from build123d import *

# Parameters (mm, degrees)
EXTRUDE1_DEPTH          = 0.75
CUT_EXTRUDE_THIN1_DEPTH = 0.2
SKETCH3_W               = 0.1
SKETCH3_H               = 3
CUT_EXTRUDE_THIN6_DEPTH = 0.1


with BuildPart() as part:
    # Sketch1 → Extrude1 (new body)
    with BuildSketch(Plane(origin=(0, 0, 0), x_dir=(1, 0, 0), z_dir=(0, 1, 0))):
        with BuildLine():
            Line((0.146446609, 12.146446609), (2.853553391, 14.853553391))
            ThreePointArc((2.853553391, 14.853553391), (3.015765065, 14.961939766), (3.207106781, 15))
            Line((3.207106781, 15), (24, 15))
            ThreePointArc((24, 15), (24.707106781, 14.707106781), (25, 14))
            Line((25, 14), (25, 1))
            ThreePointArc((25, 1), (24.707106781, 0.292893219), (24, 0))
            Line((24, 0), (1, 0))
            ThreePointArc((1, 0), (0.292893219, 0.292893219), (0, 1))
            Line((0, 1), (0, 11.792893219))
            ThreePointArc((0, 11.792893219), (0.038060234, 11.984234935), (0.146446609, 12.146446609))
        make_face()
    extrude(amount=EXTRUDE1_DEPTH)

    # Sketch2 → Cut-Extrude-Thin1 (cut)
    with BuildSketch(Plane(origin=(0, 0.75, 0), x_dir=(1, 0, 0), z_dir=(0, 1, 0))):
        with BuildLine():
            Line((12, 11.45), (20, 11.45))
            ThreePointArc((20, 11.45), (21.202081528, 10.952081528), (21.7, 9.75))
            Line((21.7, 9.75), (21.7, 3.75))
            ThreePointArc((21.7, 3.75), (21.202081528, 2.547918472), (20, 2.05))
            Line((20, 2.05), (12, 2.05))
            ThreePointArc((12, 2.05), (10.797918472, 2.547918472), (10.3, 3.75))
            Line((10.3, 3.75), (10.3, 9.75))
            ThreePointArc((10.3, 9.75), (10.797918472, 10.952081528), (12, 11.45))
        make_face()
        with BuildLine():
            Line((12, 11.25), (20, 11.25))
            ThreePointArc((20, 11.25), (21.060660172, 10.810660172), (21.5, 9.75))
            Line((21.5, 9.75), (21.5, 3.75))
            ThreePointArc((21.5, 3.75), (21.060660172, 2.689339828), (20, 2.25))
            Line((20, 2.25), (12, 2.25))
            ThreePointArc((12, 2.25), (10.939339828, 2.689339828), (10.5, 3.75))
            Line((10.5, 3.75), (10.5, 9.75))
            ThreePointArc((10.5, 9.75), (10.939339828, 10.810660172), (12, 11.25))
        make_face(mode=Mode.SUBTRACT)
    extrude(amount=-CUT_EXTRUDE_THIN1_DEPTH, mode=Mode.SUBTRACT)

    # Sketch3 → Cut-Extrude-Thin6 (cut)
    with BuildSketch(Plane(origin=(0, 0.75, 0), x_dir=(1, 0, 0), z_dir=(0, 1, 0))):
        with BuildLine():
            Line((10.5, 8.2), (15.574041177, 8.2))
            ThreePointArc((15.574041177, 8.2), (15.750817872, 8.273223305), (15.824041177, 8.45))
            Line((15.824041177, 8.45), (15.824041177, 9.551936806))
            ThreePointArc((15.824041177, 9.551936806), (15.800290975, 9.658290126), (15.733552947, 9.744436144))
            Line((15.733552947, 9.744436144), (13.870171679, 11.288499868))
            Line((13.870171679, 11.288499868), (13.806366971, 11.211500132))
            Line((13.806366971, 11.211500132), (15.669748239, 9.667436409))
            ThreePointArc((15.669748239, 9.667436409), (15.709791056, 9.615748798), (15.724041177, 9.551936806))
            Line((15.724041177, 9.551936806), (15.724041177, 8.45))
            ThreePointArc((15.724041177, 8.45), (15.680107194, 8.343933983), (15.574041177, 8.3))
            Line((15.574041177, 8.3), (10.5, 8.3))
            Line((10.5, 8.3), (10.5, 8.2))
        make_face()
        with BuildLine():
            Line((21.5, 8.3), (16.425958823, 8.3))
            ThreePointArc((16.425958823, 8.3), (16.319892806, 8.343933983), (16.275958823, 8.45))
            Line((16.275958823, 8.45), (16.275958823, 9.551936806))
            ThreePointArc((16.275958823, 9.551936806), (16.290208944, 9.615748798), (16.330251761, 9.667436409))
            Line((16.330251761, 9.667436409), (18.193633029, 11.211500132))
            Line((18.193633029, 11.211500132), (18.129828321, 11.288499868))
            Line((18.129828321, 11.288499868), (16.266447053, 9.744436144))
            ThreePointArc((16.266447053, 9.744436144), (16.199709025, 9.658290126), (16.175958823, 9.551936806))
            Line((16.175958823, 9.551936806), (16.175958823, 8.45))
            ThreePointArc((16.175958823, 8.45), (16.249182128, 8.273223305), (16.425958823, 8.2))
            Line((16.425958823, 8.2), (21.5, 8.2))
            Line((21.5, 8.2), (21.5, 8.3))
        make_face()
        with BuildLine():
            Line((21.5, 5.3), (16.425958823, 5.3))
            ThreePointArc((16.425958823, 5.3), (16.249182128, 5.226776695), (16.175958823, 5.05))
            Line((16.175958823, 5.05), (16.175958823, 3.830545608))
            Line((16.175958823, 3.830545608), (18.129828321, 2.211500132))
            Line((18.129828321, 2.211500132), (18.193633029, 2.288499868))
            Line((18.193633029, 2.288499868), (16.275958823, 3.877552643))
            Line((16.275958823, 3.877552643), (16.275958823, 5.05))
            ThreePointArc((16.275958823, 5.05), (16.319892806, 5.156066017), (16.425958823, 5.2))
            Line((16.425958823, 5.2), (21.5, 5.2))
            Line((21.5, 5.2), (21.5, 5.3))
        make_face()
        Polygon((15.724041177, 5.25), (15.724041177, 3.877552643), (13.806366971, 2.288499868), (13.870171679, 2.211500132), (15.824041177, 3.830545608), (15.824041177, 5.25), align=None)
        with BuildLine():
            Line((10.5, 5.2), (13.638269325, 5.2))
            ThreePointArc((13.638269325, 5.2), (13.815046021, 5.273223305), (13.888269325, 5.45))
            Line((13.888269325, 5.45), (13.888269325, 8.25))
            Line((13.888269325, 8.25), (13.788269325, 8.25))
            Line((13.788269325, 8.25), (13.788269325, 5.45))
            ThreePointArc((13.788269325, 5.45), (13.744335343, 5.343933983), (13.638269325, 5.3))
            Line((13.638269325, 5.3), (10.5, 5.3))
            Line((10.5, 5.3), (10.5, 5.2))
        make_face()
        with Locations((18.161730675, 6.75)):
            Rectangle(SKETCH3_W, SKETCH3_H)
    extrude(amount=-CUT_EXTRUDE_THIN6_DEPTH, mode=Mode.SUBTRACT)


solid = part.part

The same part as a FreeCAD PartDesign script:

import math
import FreeCAD as App
import Part
import Sketcher

V = App.Vector
Q = App.Units.Quantity

doc = App.newDocument("Part")
body = doc.addObject("PartDesign::Body", "Body")

# Sketch on XZ plane
sketch1 = doc.addObject("Sketcher::SketchObject", "Sketch")
body.addObject(sketch1)
sketch1.AttachmentSupport = (doc.XZ_Plane, [""])
sketch1.MapMode = "FlatFace"
sketch1.addGeometry(Part.LineSegment(V(2.853553, -14.853553, 0), V(0.146447, -12.146447, 0)), False)
sketch1.addGeometry(Part.ArcOfCircle(Part.Circle(V(0.5, -11.792893, 0), V(0, 0, 1), 0.5), math.radians(-180), math.radians(-135)), False)
sketch1.addGeometry(Part.LineSegment(V(0, -11.792893, 0), V(0, -1, 0)), False)
sketch1.addGeometry(Part.ArcOfCircle(Part.Circle(V(1, -1, 0), V(0, 0, 1), 1), math.radians(90), math.radians(180)), False)
sketch1.addGeometry(Part.LineSegment(V(1, 0, 0), V(24, 0, 0)), False)
sketch1.addGeometry(Part.ArcOfCircle(Part.Circle(V(24, -1, 0), V(0, 0, 1), 1), math.radians(0), math.radians(90)), False)
sketch1.addGeometry(Part.LineSegment(V(25, -1, 0), V(25, -14, 0)), False)
sketch1.addGeometry(Part.ArcOfCircle(Part.Circle(V(24, -14, 0), V(0, 0, 1), 1), math.radians(-90), math.radians(0)), False)
sketch1.addGeometry(Part.LineSegment(V(24, -15, 0), V(3.207107, -15, 0)), False)
sketch1.addGeometry(Part.ArcOfCircle(Part.Circle(V(3.207107, -14.5, 0), V(0, 0, 1), 0.5), math.radians(-135), math.radians(-90)), False)
sketch1.addConstraint(Sketcher.Constraint("Tangent", 0, 2, 1, 2))
sketch1.addConstraint(Sketcher.Constraint("Tangent", 1, 1, 2, 1))
sketch1.addConstraint(Sketcher.Constraint("Tangent", 2, 2, 3, 2))
sketch1.addConstraint(Sketcher.Constraint("Tangent", 3, 1, 4, 1))
sketch1.addConstraint(Sketcher.Constraint("Tangent", 4, 2, 5, 2))
sketch1.addConstraint(Sketcher.Constraint("Tangent", 5, 1, 6, 1))
sketch1.addConstraint(Sketcher.Constraint("Tangent", 6, 2, 7, 2))
sketch1.addConstraint(Sketcher.Constraint("Tangent", 7, 1, 8, 1))
sketch1.addConstraint(Sketcher.Constraint("Tangent", 8, 2, 9, 2))
sketch1.addConstraint(Sketcher.Constraint("Tangent", 9, 1, 0, 1))
sketch1.addConstraint(Sketcher.Constraint("Vertical", 2))
sketch1.addConstraint(Sketcher.Constraint("Horizontal", 4))
sketch1.addConstraint(Sketcher.Constraint("Vertical", 6))
sketch1.addConstraint(Sketcher.Constraint("Horizontal", 8))
sketch1.addConstraint(Sketcher.Constraint("Equal", 3, 5))
sketch1.addConstraint(Sketcher.Constraint("Equal", 5, 7))
sketch1.addConstraint(Sketcher.Constraint("Equal", 1, 9))
sketch1.addConstraint(Sketcher.Constraint("PointOnObject", 1, 1, -2))
sketch1.addConstraint(Sketcher.Constraint("PointOnObject", 3, 1, -1))
sketch1.addConstraint(Sketcher.Constraint("Radius", 3, 1.0))
sketch1.addConstraint(Sketcher.Constraint("Radius", 1, 0.5))
sketch1.addConstraint(Sketcher.Constraint("DistanceX", 4, 1, 4, 2, 23.0))
sketch1.addConstraint(Sketcher.Constraint("DistanceY", 6, 2, 6, 1, 13.0))
sketch1.addConstraint(Sketcher.Constraint("Angle", 0, Q("135 deg")))
sketch1.addConstraint(Sketcher.Constraint("DistanceX", 8, 2, 8, 1, 20.792893))
pad1 = doc.addObject("PartDesign::Pad", "Pad")
body.addObject(pad1)
pad1.Profile = sketch1
pad1.Length = 0.75
pad1.Reversed = True

# Sketch on XZ plane
sketch2 = doc.addObject("Sketcher::SketchObject", "Sketch001")
body.addObject(sketch2)
sketch2.AttachmentSupport = (doc.XZ_Plane, [""])
sketch2.MapMode = "FlatFace"
sketch2.AttachmentOffset = App.Placement(V(0, 0, -0.75), App.Rotation())
sketch2.addGeometry(Part.LineSegment(V(20, -11.45, 0), V(12, -11.45, 0)), False)
sketch2.addGeometry(Part.ArcOfCircle(Part.Circle(V(12, -9.75, 0), V(0, 0, 1), 1.7), math.radians(180), math.radians(270)), False)
sketch2.addGeometry(Part.LineSegment(V(10.3, -9.75, 0), V(10.3, -3.75, 0)), False)
sketch2.addGeometry(Part.ArcOfCircle(Part.Circle(V(12, -3.75, 0), V(0, 0, 1), 1.7), math.radians(90), math.radians(180)), False)
sketch2.addGeometry(Part.LineSegment(V(12, -2.05, 0), V(20, -2.05, 0)), False)
sketch2.addGeometry(Part.ArcOfCircle(Part.Circle(V(20, -3.75, 0), V(0, 0, 1), 1.7), math.radians(0), math.radians(90)), False)
sketch2.addGeometry(Part.LineSegment(V(21.7, -3.75, 0), V(21.7, -9.75, 0)), False)
sketch2.addGeometry(Part.ArcOfCircle(Part.Circle(V(20, -9.75, 0), V(0, 0, 1), 1.7), math.radians(-90), math.radians(0)), False)
sketch2.addGeometry(Part.LineSegment(V(12, -11.25, 0), V(20, -11.25, 0)), False)
sketch2.addGeometry(Part.ArcOfCircle(Part.Circle(V(20, -9.75, 0), V(0, 0, 1), 1.5), math.radians(-90), math.radians(0)), False)
sketch2.addGeometry(Part.LineSegment(V(21.5, -9.75, 0), V(21.5, -3.75, 0)), False)
sketch2.addGeometry(Part.ArcOfCircle(Part.Circle(V(20, -3.75, 0), V(0, 0, 1), 1.5), math.radians(0), math.radians(90)), False)
sketch2.addGeometry(Part.LineSegment(V(20, -2.25, 0), V(12, -2.25, 0)), False)
sketch2.addGeometry(Part.ArcOfCircle(Part.Circle(V(12, -3.75, 0), V(0, 0, 1), 1.5), math.radians(90), math.radians(180)), False)
sketch2.addGeometry(Part.LineSegment(V(10.5, -3.75, 0), V(10.5, -9.75, 0)), False)
sketch2.addGeometry(Part.ArcOfCircle(Part.Circle(V(12, -9.75, 0), V(0, 0, 1), 1.5), math.radians(180), math.radians(270)), False)
sketch2.addConstraint(Sketcher.Constraint("Tangent", 0, 2, 1, 2))
sketch2.addConstraint(Sketcher.Constraint("Tangent", 1, 1, 2, 1))
sketch2.addConstraint(Sketcher.Constraint("Tangent", 2, 2, 3, 2))
sketch2.addConstraint(Sketcher.Constraint("Tangent", 3, 1, 4, 1))
sketch2.addConstraint(Sketcher.Constraint("Tangent", 4, 2, 5, 2))
sketch2.addConstraint(Sketcher.Constraint("Tangent", 5, 1, 6, 1))
sketch2.addConstraint(Sketcher.Constraint("Tangent", 6, 2, 7, 2))
sketch2.addConstraint(Sketcher.Constraint("Tangent", 7, 1, 0, 1))
sketch2.addConstraint(Sketcher.Constraint("Tangent", 8, 2, 9, 1))
sketch2.addConstraint(Sketcher.Constraint("Tangent", 9, 2, 10, 1))
sketch2.addConstraint(Sketcher.Constraint("Tangent", 10, 2, 11, 1))
sketch2.addConstraint(Sketcher.Constraint("Tangent", 11, 2, 12, 1))
sketch2.addConstraint(Sketcher.Constraint("Tangent", 12, 2, 13, 1))
sketch2.addConstraint(Sketcher.Constraint("Tangent", 13, 2, 14, 1))
sketch2.addConstraint(Sketcher.Constraint("Tangent", 14, 2, 15, 1))
sketch2.addConstraint(Sketcher.Constraint("Tangent", 15, 2, 8, 1))
sketch2.addConstraint(Sketcher.Constraint("Horizontal", 0))
sketch2.addConstraint(Sketcher.Constraint("Vertical", 2))
sketch2.addConstraint(Sketcher.Constraint("Horizontal", 4))
sketch2.addConstraint(Sketcher.Constraint("Vertical", 6))
sketch2.addConstraint(Sketcher.Constraint("Horizontal", 8))
sketch2.addConstraint(Sketcher.Constraint("Vertical", 10))
sketch2.addConstraint(Sketcher.Constraint("Horizontal", 12))
sketch2.addConstraint(Sketcher.Constraint("Vertical", 14))
sketch2.addConstraint(Sketcher.Constraint("Coincident", 9, 3, 7, 3))
sketch2.addConstraint(Sketcher.Constraint("Coincident", 11, 3, 5, 3))
sketch2.addConstraint(Sketcher.Constraint("Coincident", 13, 3, 3, 3))
sketch2.addConstraint(Sketcher.Constraint("Equal", 1, 3))
sketch2.addConstraint(Sketcher.Constraint("Equal", 3, 5))
sketch2.addConstraint(Sketcher.Constraint("Equal", 5, 7))
sketch2.addConstraint(Sketcher.Constraint("Equal", 13, 15))
sketch2.addConstraint(Sketcher.Constraint("Radius", 1, 1.7))
sketch2.addConstraint(Sketcher.Constraint("Radius", 9, 1.5))
sketch2.addConstraint(Sketcher.Constraint("DistanceX", 0, 2, 0, 1, 8.0))
sketch2.addConstraint(Sketcher.Constraint("DistanceY", 2, 1, 2, 2, 6.0))
sketch2.addConstraint(Sketcher.Constraint("DistanceX", -1, 1, 1, 3, 12.0))
sketch2.addConstraint(Sketcher.Constraint("DistanceY", 1, 3, -1, 1, 9.75))
pocket1 = doc.addObject("PartDesign::Pocket", "Pocket")
body.addObject(pocket1)
pocket1.Profile = sketch2
pocket1.Length = 0.2
pocket1.Reversed = True

# Sketch on XZ plane
sketch3 = doc.addObject("Sketcher::SketchObject", "Sketch002")
body.addObject(sketch3)
sketch3.AttachmentSupport = (doc.XZ_Plane, [""])
sketch3.MapMode = "FlatFace"
sketch3.AttachmentOffset = App.Placement(V(0, 0, -0.75), App.Rotation())
sketch3.addGeometry(Part.LineSegment(V(10.5, -8.3, 0), V(10.5, -8.2, 0)), False)
sketch3.addGeometry(Part.LineSegment(V(10.5, -8.2, 0), V(13.788269, -8.2, 0)), False)
sketch3.addGeometry(Part.LineSegment(V(13.788269, -8.2, 0), V(13.788269, -5.45, 0)), False)
sketch3.addGeometry(Part.ArcOfCircle(Part.Circle(V(13.638269, -5.45, 0), V(0, 0, 1), 0.15), math.radians(0), math.radians(90)), False)
sketch3.addGeometry(Part.LineSegment(V(13.638269, -5.3, 0), V(10.5, -5.3, 0)), False)
sketch3.addGeometry(Part.LineSegment(V(10.5, -5.3, 0), V(10.5, -5.2, 0)), False)
sketch3.addGeometry(Part.LineSegment(V(10.5, -5.2, 0), V(13.638269, -5.2, 0)), False)
sketch3.addGeometry(Part.ArcOfCircle(Part.Circle(V(13.638269, -5.45, 0), V(0, 0, 1), 0.25), math.radians(0), math.radians(90)), False)
sketch3.addGeometry(Part.LineSegment(V(13.888269, -5.45, 0), V(13.888269, -8.2, 0)), False)
sketch3.addGeometry(Part.LineSegment(V(13.888269, -8.2, 0), V(15.574041, -8.2, 0)), False)
sketch3.addGeometry(Part.ArcOfCircle(Part.Circle(V(15.574041, -8.45, 0), V(0, 0, 1), 0.25), math.radians(0), math.radians(90)), False)
sketch3.addGeometry(Part.LineSegment(V(15.824041, -8.45, 0), V(15.824041, -9.551937, 0)), False)
sketch3.addGeometry(Part.ArcOfCircle(Part.Circle(V(15.574041, -9.551937, 0), V(0, 0, 1), 0.25), math.radians(-50.353651), math.radians(0)), False)
sketch3.addGeometry(Part.LineSegment(V(15.733553, -9.744436, 0), V(13.870172, -11.2885, 0)), False)
sketch3.addGeometry(Part.LineSegment(V(13.870172, -11.2885, 0), V(13.806367, -11.2115, 0)), False)
sketch3.addGeometry(Part.LineSegment(V(13.806367, -11.2115, 0), V(15.669748, -9.667436, 0)), False)
sketch3.addGeometry(Part.ArcOfCircle(Part.Circle(V(15.574041, -9.551937, 0), V(0, 0, 1), 0.15), math.radians(-50.353651), math.radians(0)), False)
sketch3.addGeometry(Part.LineSegment(V(15.724041, -9.551937, 0), V(15.724041, -8.45, 0)), False)
sketch3.addGeometry(Part.ArcOfCircle(Part.Circle(V(15.574041, -8.45, 0), V(0, 0, 1), 0.15), math.radians(0), math.radians(90)), False)
sketch3.addGeometry(Part.LineSegment(V(15.574041, -8.3, 0), V(10.5, -8.3, 0)), False)
sketch3.addGeometry(Part.LineSegment(V(21.5, -8.2, 0), V(21.5, -8.3, 0)), False)
sketch3.addGeometry(Part.LineSegment(V(21.5, -8.3, 0), V(16.425959, -8.3, 0)), False)
sketch3.addGeometry(Part.ArcOfCircle(Part.Circle(V(16.425959, -8.45, 0), V(0, 0, 1), 0.15), math.radians(90), math.radians(180)), False)
sketch3.addGeometry(Part.LineSegment(V(16.275959, -8.45, 0), V(16.275959, -9.551937, 0)), False)
sketch3.addGeometry(Part.ArcOfCircle(Part.Circle(V(16.425959, -9.551937, 0), V(0, 0, 1), 0.15), math.radians(180), math.radians(230.353651)), False)
sketch3.addGeometry(Part.LineSegment(V(16.330252, -9.667436, 0), V(18.193633, -11.2115, 0)), False)
sketch3.addGeometry(Part.LineSegment(V(18.193633, -11.2115, 0), V(18.129828, -11.2885, 0)), False)
sketch3.addGeometry(Part.LineSegment(V(18.129828, -11.2885, 0), V(16.266447, -9.744436, 0)), False)
sketch3.addGeometry(Part.ArcOfCircle(Part.Circle(V(16.425959, -9.551937, 0), V(0, 0, 1), 0.25), math.radians(-180), math.radians(-129.646349)), False)
sketch3.addGeometry(Part.LineSegment(V(16.175959, -9.551937, 0), V(16.175959, -8.45, 0)), False)
sketch3.addGeometry(Part.ArcOfCircle(Part.Circle(V(16.425959, -8.45, 0), V(0, 0, 1), 0.25), math.radians(90), math.radians(180)), False)
sketch3.addGeometry(Part.LineSegment(V(16.425959, -8.2, 0), V(18.111731, -8.2, 0)), False)
sketch3.addGeometry(Part.LineSegment(V(18.111731, -8.2, 0), V(18.111731, -5.3, 0)), False)
sketch3.addGeometry(Part.LineSegment(V(18.111731, -5.3, 0), V(16.425959, -5.3, 0)), False)
sketch3.addGeometry(Part.ArcOfCircle(Part.Circle(V(16.425959, -5.05, 0), V(0, 0, 1), 0.25), math.radians(-180), math.radians(-90)), False)
sketch3.addGeometry(Part.LineSegment(V(16.175959, -5.05, 0), V(16.175959, -3.830546, 0)), False)
sketch3.addGeometry(Part.LineSegment(V(16.175959, -3.830546, 0), V(18.129828, -2.2115, 0)), False)
sketch3.addGeometry(Part.LineSegment(V(18.129828, -2.2115, 0), V(18.193633, -2.2885, 0)), False)
sketch3.addGeometry(Part.LineSegment(V(18.193633, -2.2885, 0), V(16.275959, -3.877553, 0)), False)
sketch3.addGeometry(Part.LineSegment(V(16.275959, -3.877553, 0), V(16.275959, -5.05, 0)), False)
sketch3.addGeometry(Part.ArcOfCircle(Part.Circle(V(16.425959, -5.05, 0), V(0, 0, 1), 0.15), math.radians(-180), math.radians(-90)), False)
sketch3.addGeometry(Part.LineSegment(V(16.425959, -5.2, 0), V(21.5, -5.2, 0)), False)
sketch3.addGeometry(Part.LineSegment(V(21.5, -5.2, 0), V(21.5, -5.3, 0)), False)
sketch3.addGeometry(Part.LineSegment(V(21.5, -5.3, 0), V(18.211731, -5.3, 0)), False)
sketch3.addGeometry(Part.LineSegment(V(18.211731, -5.3, 0), V(18.211731, -8.2, 0)), False)
sketch3.addGeometry(Part.LineSegment(V(18.211731, -8.2, 0), V(21.5, -8.2, 0)), False)
sketch3.addGeometry(Part.LineSegment(V(15.724041, -5.25, 0), V(15.724041, -3.877553, 0)), False)
sketch3.addGeometry(Part.LineSegment(V(15.724041, -3.877553, 0), V(13.806367, -2.2885, 0)), False)
sketch3.addGeometry(Part.LineSegment(V(13.806367, -2.2885, 0), V(13.870172, -2.2115, 0)), False)
sketch3.addGeometry(Part.LineSegment(V(13.870172, -2.2115, 0), V(15.824041, -3.830546, 0)), False)
sketch3.addGeometry(Part.LineSegment(V(15.824041, -3.830546, 0), V(15.824041, -5.25, 0)), False)
sketch3.addGeometry(Part.LineSegment(V(15.824041, -5.25, 0), V(15.724041, -5.25, 0)), False)
sketch3.addConstraint(Sketcher.Constraint("Coincident", 0, 2, 1, 1))
sketch3.addConstraint(Sketcher.Constraint("Coincident", 1, 2, 2, 1))
sketch3.addConstraint(Sketcher.Constraint("Tangent", 2, 2, 3, 1))
sketch3.addConstraint(Sketcher.Constraint("Tangent", 3, 2, 4, 1))
sketch3.addConstraint(Sketcher.Constraint("Coincident", 4, 2, 5, 1))
sketch3.addConstraint(Sketcher.Constraint("Coincident", 5, 2, 6, 1))
sketch3.addConstraint(Sketcher.Constraint("Tangent", 6, 2, 7, 2))
sketch3.addConstraint(Sketcher.Constraint("Tangent", 7, 1, 8, 1))
sketch3.addConstraint(Sketcher.Constraint("Coincident", 8, 2, 9, 1))
sketch3.addConstraint(Sketcher.Constraint("Tangent", 9, 2, 10, 2))
sketch3.addConstraint(Sketcher.Constraint("Tangent", 10, 1, 11, 1))
sketch3.addConstraint(Sketcher.Constraint("Tangent", 11, 2, 12, 2))
sketch3.addConstraint(Sketcher.Constraint("Tangent", 12, 1, 13, 1))
sketch3.addConstraint(Sketcher.Constraint("Coincident", 13, 2, 14, 1))
sketch3.addConstraint(Sketcher.Constraint("Coincident", 14, 2, 15, 1))
sketch3.addConstraint(Sketcher.Constraint("Tangent", 15, 2, 16, 1))
sketch3.addConstraint(Sketcher.Constraint("Tangent", 16, 2, 17, 1))
sketch3.addConstraint(Sketcher.Constraint("Tangent", 17, 2, 18, 1))
sketch3.addConstraint(Sketcher.Constraint("Tangent", 18, 2, 19, 1))
sketch3.addConstraint(Sketcher.Constraint("Coincident", 19, 2, 0, 1))
sketch3.addConstraint(Sketcher.Constraint("Coincident", 20, 2, 21, 1))
sketch3.addConstraint(Sketcher.Constraint("Tangent", 21, 2, 22, 1))
sketch3.addConstraint(Sketcher.Constraint("Tangent", 22, 2, 23, 1))
sketch3.addConstraint(Sketcher.Constraint("Tangent", 23, 2, 24, 1))
sketch3.addConstraint(Sketcher.Constraint("Tangent", 24, 2, 25, 1))
sketch3.addConstraint(Sketcher.Constraint("Coincident", 25, 2, 26, 1))
sketch3.addConstraint(Sketcher.Constraint("Coincident", 26, 2, 27, 1))
sketch3.addConstraint(Sketcher.Constraint("Tangent", 27, 2, 28, 2))
sketch3.addConstraint(Sketcher.Constraint("Tangent", 28, 1, 29, 1))
sketch3.addConstraint(Sketcher.Constraint("Tangent", 29, 2, 30, 2))
sketch3.addConstraint(Sketcher.Constraint("Tangent", 30, 1, 31, 1))
sketch3.addConstraint(Sketcher.Constraint("Coincident", 31, 2, 32, 1))
sketch3.addConstraint(Sketcher.Constraint("Coincident", 32, 2, 33, 1))
sketch3.addConstraint(Sketcher.Constraint("Tangent", 33, 2, 34, 2))
sketch3.addConstraint(Sketcher.Constraint("Tangent", 34, 1, 35, 1))
sketch3.addConstraint(Sketcher.Constraint("Coincident", 35, 2, 36, 1))
sketch3.addConstraint(Sketcher.Constraint("Coincident", 36, 2, 37, 1))
sketch3.addConstraint(Sketcher.Constraint("Coincident", 37, 2, 38, 1))
sketch3.addConstraint(Sketcher.Constraint("Coincident", 38, 2, 39, 1))
sketch3.addConstraint(Sketcher.Constraint("Tangent", 39, 2, 40, 1))
sketch3.addConstraint(Sketcher.Constraint("Tangent", 40, 2, 41, 1))
sketch3.addConstraint(Sketcher.Constraint("Coincident", 41, 2, 42, 1))
sketch3.addConstraint(Sketcher.Constraint("Coincident", 42, 2, 43, 1))
sketch3.addConstraint(Sketcher.Constraint("Coincident", 43, 2, 44, 1))
sketch3.addConstraint(Sketcher.Constraint("Coincident", 44, 2, 45, 1))
sketch3.addConstraint(Sketcher.Constraint("Coincident", 45, 2, 20, 1))
sketch3.addConstraint(Sketcher.Constraint("Coincident", 46, 2, 47, 1))
sketch3.addConstraint(Sketcher.Constraint("Coincident", 47, 2, 48, 1))
sketch3.addConstraint(Sketcher.Constraint("Coincident", 48, 2, 49, 1))
sketch3.addConstraint(Sketcher.Constraint("Coincident", 49, 2, 50, 1))
sketch3.addConstraint(Sketcher.Constraint("Coincident", 50, 2, 51, 1))
sketch3.addConstraint(Sketcher.Constraint("Coincident", 51, 2, 46, 1))
sketch3.addConstraint(Sketcher.Constraint("Vertical", 0))
sketch3.addConstraint(Sketcher.Constraint("Horizontal", 1))
sketch3.addConstraint(Sketcher.Constraint("Vertical", 2))
sketch3.addConstraint(Sketcher.Constraint("Horizontal", 4))
sketch3.addConstraint(Sketcher.Constraint("Vertical", 5))
sketch3.addConstraint(Sketcher.Constraint("Horizontal", 6))
sketch3.addConstraint(Sketcher.Constraint("Vertical", 8))
sketch3.addConstraint(Sketcher.Constraint("Horizontal", 9))
sketch3.addConstraint(Sketcher.Constraint("Vertical", 11))
sketch3.addConstraint(Sketcher.Constraint("Vertical", 17))
sketch3.addConstraint(Sketcher.Constraint("Horizontal", 19))
sketch3.addConstraint(Sketcher.Constraint("Vertical", 20))
sketch3.addConstraint(Sketcher.Constraint("Horizontal", 21))
sketch3.addConstraint(Sketcher.Constraint("Vertical", 23))
sketch3.addConstraint(Sketcher.Constraint("Vertical", 29))
sketch3.addConstraint(Sketcher.Constraint("Horizontal", 31))
sketch3.addConstraint(Sketcher.Constraint("Vertical", 32))
sketch3.addConstraint(Sketcher.Constraint("Horizontal", 33))
sketch3.addConstraint(Sketcher.Constraint("Vertical", 35))
sketch3.addConstraint(Sketcher.Constraint("Vertical", 39))
sketch3.addConstraint(Sketcher.Constraint("Horizontal", 41))
sketch3.addConstraint(Sketcher.Constraint("Vertical", 42))
sketch3.addConstraint(Sketcher.Constraint("Horizontal", 43))
sketch3.addConstraint(Sketcher.Constraint("Vertical", 44))
sketch3.addConstraint(Sketcher.Constraint("Horizontal", 45))
sketch3.addConstraint(Sketcher.Constraint("Vertical", 46))
sketch3.addConstraint(Sketcher.Constraint("Vertical", 50))
sketch3.addConstraint(Sketcher.Constraint("Horizontal", 51))
sketch3.addConstraint(Sketcher.Constraint("Coincident", 7, 3, 3, 3))
sketch3.addConstraint(Sketcher.Constraint("Coincident", 16, 3, 12, 3))
sketch3.addConstraint(Sketcher.Constraint("Coincident", 18, 3, 10, 3))
sketch3.addConstraint(Sketcher.Constraint("Coincident", 28, 3, 24, 3))
sketch3.addConstraint(Sketcher.Constraint("Coincident", 30, 3, 22, 3))
sketch3.addConstraint(Sketcher.Constraint("Coincident", 40, 3, 34, 3))
sketch3.addConstraint(Sketcher.Constraint("Equal", 7, 10))
sketch3.addConstraint(Sketcher.Constraint("Equal", 10, 12))
sketch3.addConstraint(Sketcher.Constraint("Equal", 3, 16))
sketch3.addConstraint(Sketcher.Constraint("Equal", 18, 22))
sketch3.addConstraint(Sketcher.Constraint("Equal", 22, 24))
sketch3.addConstraint(Sketcher.Constraint("Equal", 12, 28))
sketch3.addConstraint(Sketcher.Constraint("Equal", 30, 34))
sketch3.addConstraint(Sketcher.Constraint("Equal", 24, 40))
sketch3.addConstraint(Sketcher.Constraint("Perpendicular", 13, 14))
sketch3.addConstraint(Sketcher.Constraint("Perpendicular", 14, 15))
sketch3.addConstraint(Sketcher.Constraint("Perpendicular", 25, 26))
sketch3.addConstraint(Sketcher.Constraint("Perpendicular", 26, 27))
sketch3.addConstraint(Sketcher.Constraint("Parallel", 15, 36))
sketch3.addConstraint(Sketcher.Constraint("Perpendicular", 36, 37))
sketch3.addConstraint(Sketcher.Constraint("Perpendicular", 37, 38))
sketch3.addConstraint(Sketcher.Constraint("Parallel", 27, 47))
sketch3.addConstraint(Sketcher.Constraint("Perpendicular", 47, 48))
sketch3.addConstraint(Sketcher.Constraint("Perpendicular", 48, 49))
sketch3.addConstraint(Sketcher.Constraint("Horizontal", 18, 3, 22, 3))
sketch3.addConstraint(Sketcher.Constraint("Horizontal", 16, 3, 24, 3))
sketch3.addConstraint(Sketcher.Constraint("Horizontal", 1, 2, 8, 2))
sketch3.addConstraint(Sketcher.Constraint("Horizontal", 15, 2, 24, 2))
sketch3.addConstraint(Sketcher.Constraint("Horizontal", 14, 2, 25, 2))
sketch3.addConstraint(Sketcher.Constraint("Horizontal", 4, 2, 32, 2))
sketch3.addConstraint(Sketcher.Constraint("Horizontal", 33, 2, 42, 2))
sketch3.addConstraint(Sketcher.Constraint("Horizontal", 31, 2, 44, 2))
sketch3.addConstraint(Sketcher.Constraint("Horizontal", 38, 2, 46, 2))
sketch3.addConstraint(Sketcher.Constraint("Horizontal", 37, 2, 47, 2))
sketch3.addConstraint(Sketcher.Constraint("Horizontal", 36, 2, 48, 2))
sketch3.addConstraint(Sketcher.Constraint("Horizontal", 35, 2, 49, 2))
sketch3.addConstraint(Sketcher.Constraint("Vertical", 30, 3, 34, 3))
sketch3.addConstraint(Sketcher.Constraint("Vertical", 0, 2, 4, 2))
sketch3.addConstraint(Sketcher.Constraint("Vertical", 26, 2, 36, 2))
sketch3.addConstraint(Sketcher.Constraint("Vertical", 25, 2, 37, 2))
sketch3.addConstraint(Sketcher.Constraint("Vertical", 20, 2, 41, 2))
sketch3.addConstraint(Sketcher.Constraint("Vertical", 17, 2, 46, 2))
sketch3.addConstraint(Sketcher.Constraint("Equal", 19, 21))
sketch3.addConstraint(Sketcher.Constraint("Equal", 9, 31))
sketch3.addConstraint(Sketcher.Constraint("Equal", 1, 43))
sketch3.addConstraint(Sketcher.Constraint("Radius", 3, 0.15))
sketch3.addConstraint(Sketcher.Constraint("Radius", 7, 0.25))
sketch3.addConstraint(Sketcher.Constraint("DistanceY", 32, 1, 32, 2, 2.9))
sketch3.addConstraint(Sketcher.Constraint("DistanceX", -1, 1, 0, 2, 10.5))
sketch3.addConstraint(Sketcher.Constraint("DistanceY", 0, 2, -1, 1, 8.2))
sketch3.addConstraint(Sketcher.Constraint("DistanceX", -1, 1, 20, 2, 21.5))
sketch3.addConstraint(Sketcher.Constraint("DistanceY", 50, 2, -1, 1, 5.25))
sketch3.addConstraint(Sketcher.Constraint("Distance", 36, 2.537502))
sketch3.addConstraint(Sketcher.Constraint("DistanceX", 1, 1, 1, 2, 3.288269))
sketch3.addConstraint(Sketcher.Constraint("DistanceX", 9, 1, 9, 2, 1.685772))
sketch3.addConstraint(Sketcher.Constraint("DistanceY", 13, 2, -1, 1, 11.2885))
sketch3.addConstraint(Sketcher.Constraint("DistanceY", 14, 2, -1, 1, 11.2115))
sketch3.addConstraint(Sketcher.Constraint("DistanceY", 36, 2, -1, 1, 2.2115))
pocket2 = doc.addObject("PartDesign::Pocket", "Pocket001")
body.addObject(pocket2)
pocket2.Profile = sketch3
pocket2.Length = 0.1
pocket2.Reversed = True

doc.recompute()
